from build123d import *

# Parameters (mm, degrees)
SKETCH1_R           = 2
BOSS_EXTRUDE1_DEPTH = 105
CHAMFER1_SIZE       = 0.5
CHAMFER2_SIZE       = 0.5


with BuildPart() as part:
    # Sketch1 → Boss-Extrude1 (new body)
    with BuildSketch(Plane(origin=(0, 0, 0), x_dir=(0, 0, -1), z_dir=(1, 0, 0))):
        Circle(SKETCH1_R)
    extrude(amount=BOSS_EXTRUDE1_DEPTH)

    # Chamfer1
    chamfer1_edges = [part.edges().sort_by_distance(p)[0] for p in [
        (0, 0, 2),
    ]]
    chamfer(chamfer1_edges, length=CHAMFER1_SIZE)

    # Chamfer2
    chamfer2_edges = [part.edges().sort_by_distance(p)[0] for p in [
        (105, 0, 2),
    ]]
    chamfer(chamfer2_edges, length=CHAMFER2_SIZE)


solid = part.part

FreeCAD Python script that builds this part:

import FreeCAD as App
import Part
import Sketcher

V = App.Vector


def edges_at(feature, points):
    """Names of the edges that pass closest to the given points."""
    edges = feature.Shape.Edges
    near = lambda p: min(range(len(edges)), key=lambda i: edges[i].distToShape(Part.Vertex(*p))[0])
    return sorted({f"Edge{near(p) + 1}" for p in points})

doc = App.newDocument("Part")
params = doc.addObject("Spreadsheet::Sheet", "Params")
for row, (alias, value) in enumerate([
    ("sketch1_diameter", "4 mm"),
    ("pad1_length", "105 mm"),
    ("chamfer_size", "0.5 mm"),
    ("chamfer2_size", "0.5 mm"),
], start=1):
    params.set(f"A{row}", alias)
    params.set(f"B{row}", "=" + value)
    params.setAlias(f"B{row}", alias)

body = doc.addObject("PartDesign::Body", "Body")

sketch1 = doc.addObject("Sketcher::SketchObject", "Sketch")
body.addObject(sketch1)
sketch1.AttachmentSupport = (doc.YZ_Plane, [""])
sketch1.MapMode = "FlatFace"
sketch1.addGeometry(Part.Circle(V(0, 0, 0), V(0, 0, 1), 2), False)
sketch1.addConstraint(Sketcher.Constraint("Coincident", 0, 3, -1, 1))
sketch1.addConstraint(Sketcher.Constraint("Diameter", 0, 4.0))
sketch1.setExpression("Constraints[1]", "Params.sketch1_diameter")
pad1 = doc.addObject("PartDesign::Pad", "Pad")
body.addObject(pad1)
pad1.Profile = sketch1
pad1.setExpression("Length", "Params.pad1_length")
doc.recompute()

chamfer = doc.addObject("PartDesign::Chamfer", "Chamfer")
body.addObject(chamfer)
chamfer.Base = (pad1, edges_at(pad1, [(0, 0, 2)]))
chamfer.setExpression("Size", "Params.chamfer_size")
doc.recompute()

chamfer2 = doc.addObject("PartDesign::Chamfer", "Chamfer001")
body.addObject(chamfer2)
chamfer2.Base = (chamfer, edges_at(chamfer, [(105, 0, 2)]))
chamfer2.setExpression("Size", "Params.chamfer2_size")

doc.recompute()
